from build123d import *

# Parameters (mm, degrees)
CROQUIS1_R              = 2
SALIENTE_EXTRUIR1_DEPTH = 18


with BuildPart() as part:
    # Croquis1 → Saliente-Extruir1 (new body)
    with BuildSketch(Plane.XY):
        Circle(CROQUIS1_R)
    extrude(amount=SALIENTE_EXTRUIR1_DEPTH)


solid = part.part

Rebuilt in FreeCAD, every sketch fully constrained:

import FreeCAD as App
import Part
import Sketcher

V = App.Vector
Q = App.Units.Quantity

doc = App.newDocument("Part")
params = doc.addObject("Spreadsheet::Sheet", "Params")
for row, (alias, value) in enumerate([
    ("sketch1_diameter", "4 mm"),
    ("pad1_length", "18 mm"),
], start=1):
    params.set(f"A{row}", alias)
    params.set(f"B{row}", "=" + value)
    params.setAlias(f"B{row}", alias)

body = doc.addObject("PartDesign::Body", "Body")

# Sketch on XY plane
sketch1 = doc.addObject("Sketcher::SketchObject", "Sketch")
body.addObject(sketch1)
sketch1.AttachmentSupport = (doc.XY_Plane, [""])
sketch1.MapMode = "FlatFace"
sketch1.addGeometry(Part.Circle(V(0, 0, 0), V(0, 0, 1), 2), False)
sketch1.addConstraint([
    Sketcher.Constraint("Coincident", 0, 3, -1, 1),
    Sketcher.Constraint("Diameter", 0, Q("4 mm")),
])
sketch1.setExpression("Constraints[1]", "Params.sketch1_diameter")
pad1 = doc.addObject("PartDesign::Pad", "Pad")
body.addObject(pad1)
pad1.Profile = sketch1
pad1.setExpression("Length", "Params.pad1_length")

doc.recompute()
